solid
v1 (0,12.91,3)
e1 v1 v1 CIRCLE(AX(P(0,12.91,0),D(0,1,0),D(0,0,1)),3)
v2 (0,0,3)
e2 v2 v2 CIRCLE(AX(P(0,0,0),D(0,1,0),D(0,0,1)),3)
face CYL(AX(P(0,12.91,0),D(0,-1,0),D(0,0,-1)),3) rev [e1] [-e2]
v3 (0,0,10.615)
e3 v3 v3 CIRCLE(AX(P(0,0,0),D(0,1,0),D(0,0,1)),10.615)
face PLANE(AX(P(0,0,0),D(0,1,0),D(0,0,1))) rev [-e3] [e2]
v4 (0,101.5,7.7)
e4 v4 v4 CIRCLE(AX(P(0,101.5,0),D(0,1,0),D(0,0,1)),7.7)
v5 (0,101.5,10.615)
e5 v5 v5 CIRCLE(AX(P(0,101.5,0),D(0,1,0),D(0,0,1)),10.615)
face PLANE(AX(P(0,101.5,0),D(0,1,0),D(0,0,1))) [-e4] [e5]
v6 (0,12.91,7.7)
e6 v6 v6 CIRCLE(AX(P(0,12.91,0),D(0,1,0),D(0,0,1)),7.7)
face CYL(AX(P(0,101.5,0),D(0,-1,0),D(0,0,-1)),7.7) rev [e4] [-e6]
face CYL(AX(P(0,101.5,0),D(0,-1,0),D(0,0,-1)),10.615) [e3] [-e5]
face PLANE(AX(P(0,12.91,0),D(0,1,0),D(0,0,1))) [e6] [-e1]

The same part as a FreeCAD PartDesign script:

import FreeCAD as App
import Part
import Sketcher
from FreeCAD import Vector

doc = App.newDocument("Part")
params = doc.addObject("Spreadsheet::Sheet", "Params")
for row, (alias, value) in enumerate([
    ("sketch1_diameter", "15.4 mm"),
    ("sketch1_diameter2", "21.23 mm"),
    ("pad1_length", "101.5 mm"),
    ("sketch2_diameter", "6 mm"),
    ("sketch2_diameter2", "15.4 mm"),
    ("pad2_length", "12.91 mm"),
], start=1):
    params.set(f"A{row}", alias)
    params.set(f"B{row}", "=" + value)
    params.setAlias(f"B{row}", alias)

body = doc.addObject("PartDesign::Body", "Body")

# Sketch on XZ plane
sketch1 = body.newObject("Sketcher::SketchObject", "Sketch")
sketch1.AttachmentSupport = (doc.getObject("XZ_Plane"), [""])
sketch1.MapMode = "FlatFace"
sketch1.addGeometry([
    Part.Circle(Vector(0, 0, 0), Vector(0, 0, 1), 11),
    Part.Circle(Vector(0, 0, 0), Vector(0, 0, 1), 8),
], False)
sketch1.addConstraint([
    Sketcher.Constraint("Coincident", 0, 3, -1, 1),
    Sketcher.Constraint("Coincident", 1, 3, -1, 1),
    Sketcher.Constraint("Diameter", 1, 15.4),
    Sketcher.Constraint("Diameter", 0, 21.23),
])
sketch1.setExpression("Constraints[2]", "Params.sketch1_diameter")
sketch1.setExpression("Constraints[3]", "Params.sketch1_diameter2")
pad1 = body.newObject("PartDesign::Pad", "Pad")
pad1.Profile = sketch1
pad1.setExpression("Length", "Params.pad1_length")
pad1.Reversed = True

# Sketch on XZ plane
sketch2 = body.newObject("Sketcher::SketchObject", "Sketch001")
sketch2.AttachmentSupport = (doc.getObject("XZ_Plane"), [""])
sketch2.MapMode = "FlatFace"
sketch2.addGeometry([
    Part.Circle(Vector(0, 0, 0), Vector(0, 0, 1), 7.7),
    Part.Circle(Vector(0, 0, 0), Vector(0, 0, 1), 3),
], False)
sketch2.addConstraint([
    Sketcher.Constraint("Coincident", 0, 3, -1, 1),
    Sketcher.Constraint("Coincident", 1, 3, -1, 1),
    Sketcher.Constraint("Diameter", 1, 6.0),
    Sketcher.Constraint("Diameter", 0, 15.4),
])
sketch2.setExpression("Constraints[2]", "Params.sketch2_diameter")
sketch2.setExpression("Constraints[3]", "Params.sketch2_diameter2")
pad2 = body.newObject("PartDesign::Pad", "Pad001")
pad2.Profile = sketch2
pad2.setExpression("Length", "Params.pad2_length")
pad2.Reversed = True

doc.recompute()
